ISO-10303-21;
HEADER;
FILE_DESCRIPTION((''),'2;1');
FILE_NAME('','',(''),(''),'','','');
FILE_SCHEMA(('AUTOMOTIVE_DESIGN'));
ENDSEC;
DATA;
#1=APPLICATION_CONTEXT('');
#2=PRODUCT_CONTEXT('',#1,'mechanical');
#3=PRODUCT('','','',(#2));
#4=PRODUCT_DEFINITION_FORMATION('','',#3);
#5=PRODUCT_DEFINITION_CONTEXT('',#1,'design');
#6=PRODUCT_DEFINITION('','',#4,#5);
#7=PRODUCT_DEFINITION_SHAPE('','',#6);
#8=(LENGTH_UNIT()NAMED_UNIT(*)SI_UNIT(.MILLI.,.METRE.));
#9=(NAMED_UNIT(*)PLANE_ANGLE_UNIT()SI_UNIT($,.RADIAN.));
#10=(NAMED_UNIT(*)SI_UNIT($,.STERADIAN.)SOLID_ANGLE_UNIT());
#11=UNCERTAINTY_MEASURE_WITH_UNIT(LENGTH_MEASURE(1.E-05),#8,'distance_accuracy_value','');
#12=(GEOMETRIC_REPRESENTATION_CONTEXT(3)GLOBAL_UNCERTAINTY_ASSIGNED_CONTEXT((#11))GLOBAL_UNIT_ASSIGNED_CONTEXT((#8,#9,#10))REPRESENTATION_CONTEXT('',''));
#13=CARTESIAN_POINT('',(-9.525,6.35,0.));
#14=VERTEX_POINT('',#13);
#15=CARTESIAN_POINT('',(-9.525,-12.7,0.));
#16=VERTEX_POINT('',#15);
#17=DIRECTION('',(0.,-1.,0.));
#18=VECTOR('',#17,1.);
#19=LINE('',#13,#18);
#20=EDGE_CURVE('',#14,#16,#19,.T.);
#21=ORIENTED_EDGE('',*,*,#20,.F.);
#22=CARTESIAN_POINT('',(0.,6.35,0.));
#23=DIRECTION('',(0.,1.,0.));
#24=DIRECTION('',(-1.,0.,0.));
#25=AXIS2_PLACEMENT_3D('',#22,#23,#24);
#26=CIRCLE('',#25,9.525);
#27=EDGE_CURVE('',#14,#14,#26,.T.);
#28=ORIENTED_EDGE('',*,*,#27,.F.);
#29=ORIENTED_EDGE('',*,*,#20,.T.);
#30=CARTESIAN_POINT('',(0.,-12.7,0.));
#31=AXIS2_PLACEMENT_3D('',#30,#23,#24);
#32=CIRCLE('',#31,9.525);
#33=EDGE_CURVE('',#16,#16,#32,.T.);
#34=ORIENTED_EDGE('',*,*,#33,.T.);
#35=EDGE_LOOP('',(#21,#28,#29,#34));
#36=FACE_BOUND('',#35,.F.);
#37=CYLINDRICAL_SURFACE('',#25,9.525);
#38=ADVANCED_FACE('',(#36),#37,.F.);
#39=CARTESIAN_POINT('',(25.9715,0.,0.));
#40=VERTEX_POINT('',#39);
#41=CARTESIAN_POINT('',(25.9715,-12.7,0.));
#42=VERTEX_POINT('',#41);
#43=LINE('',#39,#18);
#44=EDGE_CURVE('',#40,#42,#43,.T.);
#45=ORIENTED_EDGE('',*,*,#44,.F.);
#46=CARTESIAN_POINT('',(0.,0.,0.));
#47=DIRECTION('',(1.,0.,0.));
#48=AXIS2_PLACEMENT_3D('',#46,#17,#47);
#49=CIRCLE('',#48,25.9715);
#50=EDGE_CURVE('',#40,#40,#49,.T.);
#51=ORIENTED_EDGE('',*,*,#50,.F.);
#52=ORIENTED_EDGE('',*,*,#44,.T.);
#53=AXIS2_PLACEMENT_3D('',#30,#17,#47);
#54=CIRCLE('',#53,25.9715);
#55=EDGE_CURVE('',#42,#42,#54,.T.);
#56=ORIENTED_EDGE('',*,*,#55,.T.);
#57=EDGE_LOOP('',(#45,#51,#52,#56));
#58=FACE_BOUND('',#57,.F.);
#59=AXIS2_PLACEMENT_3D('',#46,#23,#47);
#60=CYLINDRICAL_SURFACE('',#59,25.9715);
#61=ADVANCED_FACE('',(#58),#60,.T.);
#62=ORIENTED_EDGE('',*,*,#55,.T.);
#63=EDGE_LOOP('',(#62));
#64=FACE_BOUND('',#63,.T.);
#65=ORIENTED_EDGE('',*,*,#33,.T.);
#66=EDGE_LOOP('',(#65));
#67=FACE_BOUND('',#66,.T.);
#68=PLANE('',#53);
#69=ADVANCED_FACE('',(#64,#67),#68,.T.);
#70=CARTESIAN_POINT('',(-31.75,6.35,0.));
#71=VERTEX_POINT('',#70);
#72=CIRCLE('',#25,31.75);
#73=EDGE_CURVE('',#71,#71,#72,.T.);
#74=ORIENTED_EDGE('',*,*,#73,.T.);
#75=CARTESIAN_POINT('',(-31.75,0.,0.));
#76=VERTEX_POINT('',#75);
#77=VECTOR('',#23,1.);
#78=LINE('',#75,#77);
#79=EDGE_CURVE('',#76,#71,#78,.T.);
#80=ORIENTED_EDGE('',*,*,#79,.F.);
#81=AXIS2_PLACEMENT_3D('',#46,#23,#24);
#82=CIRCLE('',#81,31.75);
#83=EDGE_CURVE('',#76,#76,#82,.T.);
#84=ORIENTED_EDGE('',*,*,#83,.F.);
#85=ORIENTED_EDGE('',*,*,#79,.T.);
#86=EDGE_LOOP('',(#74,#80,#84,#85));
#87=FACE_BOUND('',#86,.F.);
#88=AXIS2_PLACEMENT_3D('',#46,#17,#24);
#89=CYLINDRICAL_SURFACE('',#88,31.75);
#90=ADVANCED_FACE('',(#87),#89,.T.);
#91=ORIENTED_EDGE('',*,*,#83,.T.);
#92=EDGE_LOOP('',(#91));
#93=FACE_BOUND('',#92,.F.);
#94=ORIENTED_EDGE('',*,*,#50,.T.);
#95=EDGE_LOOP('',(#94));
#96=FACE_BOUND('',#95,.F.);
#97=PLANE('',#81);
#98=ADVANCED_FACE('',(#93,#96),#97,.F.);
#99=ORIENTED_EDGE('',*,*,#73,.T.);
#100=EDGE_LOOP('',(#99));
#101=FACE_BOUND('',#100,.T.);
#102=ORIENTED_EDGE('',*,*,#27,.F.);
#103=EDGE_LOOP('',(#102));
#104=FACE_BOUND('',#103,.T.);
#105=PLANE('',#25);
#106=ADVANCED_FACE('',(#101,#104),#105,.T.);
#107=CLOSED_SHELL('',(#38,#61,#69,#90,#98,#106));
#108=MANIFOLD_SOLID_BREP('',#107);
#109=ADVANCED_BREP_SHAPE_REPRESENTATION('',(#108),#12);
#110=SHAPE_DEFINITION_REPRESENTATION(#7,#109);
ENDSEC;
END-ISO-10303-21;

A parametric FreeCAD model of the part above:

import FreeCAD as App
import Part
import Sketcher
Q = App.Units.Quantity

doc = App.newDocument("Part")
body = doc.addObject("PartDesign::Body", "Body")

# Sketch on XZ plane
sketch1 = body.newObject("Sketcher::SketchObject", "Sketch")
sketch1.AttachmentSupport = (doc.getObject("XZ_Plane"), [""])
sketch1.MapMode = "FlatFace"
sketch1.addGeometry(Part.Circle(App.Vector(0, 0, 0), App.Vector(0, 0, 1), 26), False)
sketch1.addConstraint([
    Sketcher.Constraint("Coincident", 0, 3, -1, 1),
    Sketcher.Constraint("Diameter", 0, Q("2.045 in")),
])
pad1 = body.newObject("PartDesign::Pad", "Pad")
pad1.Profile = sketch1
pad1.Length = Q("0.5 in")

# Sketch on XZ plane
sketch2 = body.newObject("Sketcher::SketchObject", "Sketch001")
sketch2.AttachmentSupport = (doc.getObject("XZ_Plane"), [""])
sketch2.MapMode = "FlatFace"
sketch2.addGeometry(Part.Circle(App.Vector(0, 0, 0), App.Vector(0, 0, 1), 32), False)
sketch2.addConstraint([
    Sketcher.Constraint("Coincident", 0, 3, -1, 1),
    Sketcher.Constraint("Diameter", 0, Q("2.5 in")),
])
pad2 = body.newObject("PartDesign::Pad", "Pad001")
pad2.Profile = sketch2
pad2.Length = Q("0.25 in")
pad2.Reversed = True

# Sketch on XZ plane
sketch3 = body.newObject("Sketcher::SketchObject", "Sketch002")
sketch3.AttachmentSupport = (doc.getObject("XZ_Plane"), [""])
sketch3.MapMode = "FlatFace"
sketch3.AttachmentOffset = App.Placement(App.Vector(0, 0, -0.25 * 25.4), App.Rotation())
sketch3.addGeometry(Part.Circle(App.Vector(0, 0, 0), App.Vector(0, 0, 1), 10), False)
sketch3.addConstraint([
    Sketcher.Constraint("Coincident", 0, 3, -1, 1),
    Sketcher.Constraint("Diameter", 0, Q("0.75 in")),
])
pocket1 = body.newObject("PartDesign::Pocket", "Pocket")
pocket1.Profile = sketch3
pocket1.Type = "ThroughAll"
pocket1.Reversed = True

doc.recompute()
